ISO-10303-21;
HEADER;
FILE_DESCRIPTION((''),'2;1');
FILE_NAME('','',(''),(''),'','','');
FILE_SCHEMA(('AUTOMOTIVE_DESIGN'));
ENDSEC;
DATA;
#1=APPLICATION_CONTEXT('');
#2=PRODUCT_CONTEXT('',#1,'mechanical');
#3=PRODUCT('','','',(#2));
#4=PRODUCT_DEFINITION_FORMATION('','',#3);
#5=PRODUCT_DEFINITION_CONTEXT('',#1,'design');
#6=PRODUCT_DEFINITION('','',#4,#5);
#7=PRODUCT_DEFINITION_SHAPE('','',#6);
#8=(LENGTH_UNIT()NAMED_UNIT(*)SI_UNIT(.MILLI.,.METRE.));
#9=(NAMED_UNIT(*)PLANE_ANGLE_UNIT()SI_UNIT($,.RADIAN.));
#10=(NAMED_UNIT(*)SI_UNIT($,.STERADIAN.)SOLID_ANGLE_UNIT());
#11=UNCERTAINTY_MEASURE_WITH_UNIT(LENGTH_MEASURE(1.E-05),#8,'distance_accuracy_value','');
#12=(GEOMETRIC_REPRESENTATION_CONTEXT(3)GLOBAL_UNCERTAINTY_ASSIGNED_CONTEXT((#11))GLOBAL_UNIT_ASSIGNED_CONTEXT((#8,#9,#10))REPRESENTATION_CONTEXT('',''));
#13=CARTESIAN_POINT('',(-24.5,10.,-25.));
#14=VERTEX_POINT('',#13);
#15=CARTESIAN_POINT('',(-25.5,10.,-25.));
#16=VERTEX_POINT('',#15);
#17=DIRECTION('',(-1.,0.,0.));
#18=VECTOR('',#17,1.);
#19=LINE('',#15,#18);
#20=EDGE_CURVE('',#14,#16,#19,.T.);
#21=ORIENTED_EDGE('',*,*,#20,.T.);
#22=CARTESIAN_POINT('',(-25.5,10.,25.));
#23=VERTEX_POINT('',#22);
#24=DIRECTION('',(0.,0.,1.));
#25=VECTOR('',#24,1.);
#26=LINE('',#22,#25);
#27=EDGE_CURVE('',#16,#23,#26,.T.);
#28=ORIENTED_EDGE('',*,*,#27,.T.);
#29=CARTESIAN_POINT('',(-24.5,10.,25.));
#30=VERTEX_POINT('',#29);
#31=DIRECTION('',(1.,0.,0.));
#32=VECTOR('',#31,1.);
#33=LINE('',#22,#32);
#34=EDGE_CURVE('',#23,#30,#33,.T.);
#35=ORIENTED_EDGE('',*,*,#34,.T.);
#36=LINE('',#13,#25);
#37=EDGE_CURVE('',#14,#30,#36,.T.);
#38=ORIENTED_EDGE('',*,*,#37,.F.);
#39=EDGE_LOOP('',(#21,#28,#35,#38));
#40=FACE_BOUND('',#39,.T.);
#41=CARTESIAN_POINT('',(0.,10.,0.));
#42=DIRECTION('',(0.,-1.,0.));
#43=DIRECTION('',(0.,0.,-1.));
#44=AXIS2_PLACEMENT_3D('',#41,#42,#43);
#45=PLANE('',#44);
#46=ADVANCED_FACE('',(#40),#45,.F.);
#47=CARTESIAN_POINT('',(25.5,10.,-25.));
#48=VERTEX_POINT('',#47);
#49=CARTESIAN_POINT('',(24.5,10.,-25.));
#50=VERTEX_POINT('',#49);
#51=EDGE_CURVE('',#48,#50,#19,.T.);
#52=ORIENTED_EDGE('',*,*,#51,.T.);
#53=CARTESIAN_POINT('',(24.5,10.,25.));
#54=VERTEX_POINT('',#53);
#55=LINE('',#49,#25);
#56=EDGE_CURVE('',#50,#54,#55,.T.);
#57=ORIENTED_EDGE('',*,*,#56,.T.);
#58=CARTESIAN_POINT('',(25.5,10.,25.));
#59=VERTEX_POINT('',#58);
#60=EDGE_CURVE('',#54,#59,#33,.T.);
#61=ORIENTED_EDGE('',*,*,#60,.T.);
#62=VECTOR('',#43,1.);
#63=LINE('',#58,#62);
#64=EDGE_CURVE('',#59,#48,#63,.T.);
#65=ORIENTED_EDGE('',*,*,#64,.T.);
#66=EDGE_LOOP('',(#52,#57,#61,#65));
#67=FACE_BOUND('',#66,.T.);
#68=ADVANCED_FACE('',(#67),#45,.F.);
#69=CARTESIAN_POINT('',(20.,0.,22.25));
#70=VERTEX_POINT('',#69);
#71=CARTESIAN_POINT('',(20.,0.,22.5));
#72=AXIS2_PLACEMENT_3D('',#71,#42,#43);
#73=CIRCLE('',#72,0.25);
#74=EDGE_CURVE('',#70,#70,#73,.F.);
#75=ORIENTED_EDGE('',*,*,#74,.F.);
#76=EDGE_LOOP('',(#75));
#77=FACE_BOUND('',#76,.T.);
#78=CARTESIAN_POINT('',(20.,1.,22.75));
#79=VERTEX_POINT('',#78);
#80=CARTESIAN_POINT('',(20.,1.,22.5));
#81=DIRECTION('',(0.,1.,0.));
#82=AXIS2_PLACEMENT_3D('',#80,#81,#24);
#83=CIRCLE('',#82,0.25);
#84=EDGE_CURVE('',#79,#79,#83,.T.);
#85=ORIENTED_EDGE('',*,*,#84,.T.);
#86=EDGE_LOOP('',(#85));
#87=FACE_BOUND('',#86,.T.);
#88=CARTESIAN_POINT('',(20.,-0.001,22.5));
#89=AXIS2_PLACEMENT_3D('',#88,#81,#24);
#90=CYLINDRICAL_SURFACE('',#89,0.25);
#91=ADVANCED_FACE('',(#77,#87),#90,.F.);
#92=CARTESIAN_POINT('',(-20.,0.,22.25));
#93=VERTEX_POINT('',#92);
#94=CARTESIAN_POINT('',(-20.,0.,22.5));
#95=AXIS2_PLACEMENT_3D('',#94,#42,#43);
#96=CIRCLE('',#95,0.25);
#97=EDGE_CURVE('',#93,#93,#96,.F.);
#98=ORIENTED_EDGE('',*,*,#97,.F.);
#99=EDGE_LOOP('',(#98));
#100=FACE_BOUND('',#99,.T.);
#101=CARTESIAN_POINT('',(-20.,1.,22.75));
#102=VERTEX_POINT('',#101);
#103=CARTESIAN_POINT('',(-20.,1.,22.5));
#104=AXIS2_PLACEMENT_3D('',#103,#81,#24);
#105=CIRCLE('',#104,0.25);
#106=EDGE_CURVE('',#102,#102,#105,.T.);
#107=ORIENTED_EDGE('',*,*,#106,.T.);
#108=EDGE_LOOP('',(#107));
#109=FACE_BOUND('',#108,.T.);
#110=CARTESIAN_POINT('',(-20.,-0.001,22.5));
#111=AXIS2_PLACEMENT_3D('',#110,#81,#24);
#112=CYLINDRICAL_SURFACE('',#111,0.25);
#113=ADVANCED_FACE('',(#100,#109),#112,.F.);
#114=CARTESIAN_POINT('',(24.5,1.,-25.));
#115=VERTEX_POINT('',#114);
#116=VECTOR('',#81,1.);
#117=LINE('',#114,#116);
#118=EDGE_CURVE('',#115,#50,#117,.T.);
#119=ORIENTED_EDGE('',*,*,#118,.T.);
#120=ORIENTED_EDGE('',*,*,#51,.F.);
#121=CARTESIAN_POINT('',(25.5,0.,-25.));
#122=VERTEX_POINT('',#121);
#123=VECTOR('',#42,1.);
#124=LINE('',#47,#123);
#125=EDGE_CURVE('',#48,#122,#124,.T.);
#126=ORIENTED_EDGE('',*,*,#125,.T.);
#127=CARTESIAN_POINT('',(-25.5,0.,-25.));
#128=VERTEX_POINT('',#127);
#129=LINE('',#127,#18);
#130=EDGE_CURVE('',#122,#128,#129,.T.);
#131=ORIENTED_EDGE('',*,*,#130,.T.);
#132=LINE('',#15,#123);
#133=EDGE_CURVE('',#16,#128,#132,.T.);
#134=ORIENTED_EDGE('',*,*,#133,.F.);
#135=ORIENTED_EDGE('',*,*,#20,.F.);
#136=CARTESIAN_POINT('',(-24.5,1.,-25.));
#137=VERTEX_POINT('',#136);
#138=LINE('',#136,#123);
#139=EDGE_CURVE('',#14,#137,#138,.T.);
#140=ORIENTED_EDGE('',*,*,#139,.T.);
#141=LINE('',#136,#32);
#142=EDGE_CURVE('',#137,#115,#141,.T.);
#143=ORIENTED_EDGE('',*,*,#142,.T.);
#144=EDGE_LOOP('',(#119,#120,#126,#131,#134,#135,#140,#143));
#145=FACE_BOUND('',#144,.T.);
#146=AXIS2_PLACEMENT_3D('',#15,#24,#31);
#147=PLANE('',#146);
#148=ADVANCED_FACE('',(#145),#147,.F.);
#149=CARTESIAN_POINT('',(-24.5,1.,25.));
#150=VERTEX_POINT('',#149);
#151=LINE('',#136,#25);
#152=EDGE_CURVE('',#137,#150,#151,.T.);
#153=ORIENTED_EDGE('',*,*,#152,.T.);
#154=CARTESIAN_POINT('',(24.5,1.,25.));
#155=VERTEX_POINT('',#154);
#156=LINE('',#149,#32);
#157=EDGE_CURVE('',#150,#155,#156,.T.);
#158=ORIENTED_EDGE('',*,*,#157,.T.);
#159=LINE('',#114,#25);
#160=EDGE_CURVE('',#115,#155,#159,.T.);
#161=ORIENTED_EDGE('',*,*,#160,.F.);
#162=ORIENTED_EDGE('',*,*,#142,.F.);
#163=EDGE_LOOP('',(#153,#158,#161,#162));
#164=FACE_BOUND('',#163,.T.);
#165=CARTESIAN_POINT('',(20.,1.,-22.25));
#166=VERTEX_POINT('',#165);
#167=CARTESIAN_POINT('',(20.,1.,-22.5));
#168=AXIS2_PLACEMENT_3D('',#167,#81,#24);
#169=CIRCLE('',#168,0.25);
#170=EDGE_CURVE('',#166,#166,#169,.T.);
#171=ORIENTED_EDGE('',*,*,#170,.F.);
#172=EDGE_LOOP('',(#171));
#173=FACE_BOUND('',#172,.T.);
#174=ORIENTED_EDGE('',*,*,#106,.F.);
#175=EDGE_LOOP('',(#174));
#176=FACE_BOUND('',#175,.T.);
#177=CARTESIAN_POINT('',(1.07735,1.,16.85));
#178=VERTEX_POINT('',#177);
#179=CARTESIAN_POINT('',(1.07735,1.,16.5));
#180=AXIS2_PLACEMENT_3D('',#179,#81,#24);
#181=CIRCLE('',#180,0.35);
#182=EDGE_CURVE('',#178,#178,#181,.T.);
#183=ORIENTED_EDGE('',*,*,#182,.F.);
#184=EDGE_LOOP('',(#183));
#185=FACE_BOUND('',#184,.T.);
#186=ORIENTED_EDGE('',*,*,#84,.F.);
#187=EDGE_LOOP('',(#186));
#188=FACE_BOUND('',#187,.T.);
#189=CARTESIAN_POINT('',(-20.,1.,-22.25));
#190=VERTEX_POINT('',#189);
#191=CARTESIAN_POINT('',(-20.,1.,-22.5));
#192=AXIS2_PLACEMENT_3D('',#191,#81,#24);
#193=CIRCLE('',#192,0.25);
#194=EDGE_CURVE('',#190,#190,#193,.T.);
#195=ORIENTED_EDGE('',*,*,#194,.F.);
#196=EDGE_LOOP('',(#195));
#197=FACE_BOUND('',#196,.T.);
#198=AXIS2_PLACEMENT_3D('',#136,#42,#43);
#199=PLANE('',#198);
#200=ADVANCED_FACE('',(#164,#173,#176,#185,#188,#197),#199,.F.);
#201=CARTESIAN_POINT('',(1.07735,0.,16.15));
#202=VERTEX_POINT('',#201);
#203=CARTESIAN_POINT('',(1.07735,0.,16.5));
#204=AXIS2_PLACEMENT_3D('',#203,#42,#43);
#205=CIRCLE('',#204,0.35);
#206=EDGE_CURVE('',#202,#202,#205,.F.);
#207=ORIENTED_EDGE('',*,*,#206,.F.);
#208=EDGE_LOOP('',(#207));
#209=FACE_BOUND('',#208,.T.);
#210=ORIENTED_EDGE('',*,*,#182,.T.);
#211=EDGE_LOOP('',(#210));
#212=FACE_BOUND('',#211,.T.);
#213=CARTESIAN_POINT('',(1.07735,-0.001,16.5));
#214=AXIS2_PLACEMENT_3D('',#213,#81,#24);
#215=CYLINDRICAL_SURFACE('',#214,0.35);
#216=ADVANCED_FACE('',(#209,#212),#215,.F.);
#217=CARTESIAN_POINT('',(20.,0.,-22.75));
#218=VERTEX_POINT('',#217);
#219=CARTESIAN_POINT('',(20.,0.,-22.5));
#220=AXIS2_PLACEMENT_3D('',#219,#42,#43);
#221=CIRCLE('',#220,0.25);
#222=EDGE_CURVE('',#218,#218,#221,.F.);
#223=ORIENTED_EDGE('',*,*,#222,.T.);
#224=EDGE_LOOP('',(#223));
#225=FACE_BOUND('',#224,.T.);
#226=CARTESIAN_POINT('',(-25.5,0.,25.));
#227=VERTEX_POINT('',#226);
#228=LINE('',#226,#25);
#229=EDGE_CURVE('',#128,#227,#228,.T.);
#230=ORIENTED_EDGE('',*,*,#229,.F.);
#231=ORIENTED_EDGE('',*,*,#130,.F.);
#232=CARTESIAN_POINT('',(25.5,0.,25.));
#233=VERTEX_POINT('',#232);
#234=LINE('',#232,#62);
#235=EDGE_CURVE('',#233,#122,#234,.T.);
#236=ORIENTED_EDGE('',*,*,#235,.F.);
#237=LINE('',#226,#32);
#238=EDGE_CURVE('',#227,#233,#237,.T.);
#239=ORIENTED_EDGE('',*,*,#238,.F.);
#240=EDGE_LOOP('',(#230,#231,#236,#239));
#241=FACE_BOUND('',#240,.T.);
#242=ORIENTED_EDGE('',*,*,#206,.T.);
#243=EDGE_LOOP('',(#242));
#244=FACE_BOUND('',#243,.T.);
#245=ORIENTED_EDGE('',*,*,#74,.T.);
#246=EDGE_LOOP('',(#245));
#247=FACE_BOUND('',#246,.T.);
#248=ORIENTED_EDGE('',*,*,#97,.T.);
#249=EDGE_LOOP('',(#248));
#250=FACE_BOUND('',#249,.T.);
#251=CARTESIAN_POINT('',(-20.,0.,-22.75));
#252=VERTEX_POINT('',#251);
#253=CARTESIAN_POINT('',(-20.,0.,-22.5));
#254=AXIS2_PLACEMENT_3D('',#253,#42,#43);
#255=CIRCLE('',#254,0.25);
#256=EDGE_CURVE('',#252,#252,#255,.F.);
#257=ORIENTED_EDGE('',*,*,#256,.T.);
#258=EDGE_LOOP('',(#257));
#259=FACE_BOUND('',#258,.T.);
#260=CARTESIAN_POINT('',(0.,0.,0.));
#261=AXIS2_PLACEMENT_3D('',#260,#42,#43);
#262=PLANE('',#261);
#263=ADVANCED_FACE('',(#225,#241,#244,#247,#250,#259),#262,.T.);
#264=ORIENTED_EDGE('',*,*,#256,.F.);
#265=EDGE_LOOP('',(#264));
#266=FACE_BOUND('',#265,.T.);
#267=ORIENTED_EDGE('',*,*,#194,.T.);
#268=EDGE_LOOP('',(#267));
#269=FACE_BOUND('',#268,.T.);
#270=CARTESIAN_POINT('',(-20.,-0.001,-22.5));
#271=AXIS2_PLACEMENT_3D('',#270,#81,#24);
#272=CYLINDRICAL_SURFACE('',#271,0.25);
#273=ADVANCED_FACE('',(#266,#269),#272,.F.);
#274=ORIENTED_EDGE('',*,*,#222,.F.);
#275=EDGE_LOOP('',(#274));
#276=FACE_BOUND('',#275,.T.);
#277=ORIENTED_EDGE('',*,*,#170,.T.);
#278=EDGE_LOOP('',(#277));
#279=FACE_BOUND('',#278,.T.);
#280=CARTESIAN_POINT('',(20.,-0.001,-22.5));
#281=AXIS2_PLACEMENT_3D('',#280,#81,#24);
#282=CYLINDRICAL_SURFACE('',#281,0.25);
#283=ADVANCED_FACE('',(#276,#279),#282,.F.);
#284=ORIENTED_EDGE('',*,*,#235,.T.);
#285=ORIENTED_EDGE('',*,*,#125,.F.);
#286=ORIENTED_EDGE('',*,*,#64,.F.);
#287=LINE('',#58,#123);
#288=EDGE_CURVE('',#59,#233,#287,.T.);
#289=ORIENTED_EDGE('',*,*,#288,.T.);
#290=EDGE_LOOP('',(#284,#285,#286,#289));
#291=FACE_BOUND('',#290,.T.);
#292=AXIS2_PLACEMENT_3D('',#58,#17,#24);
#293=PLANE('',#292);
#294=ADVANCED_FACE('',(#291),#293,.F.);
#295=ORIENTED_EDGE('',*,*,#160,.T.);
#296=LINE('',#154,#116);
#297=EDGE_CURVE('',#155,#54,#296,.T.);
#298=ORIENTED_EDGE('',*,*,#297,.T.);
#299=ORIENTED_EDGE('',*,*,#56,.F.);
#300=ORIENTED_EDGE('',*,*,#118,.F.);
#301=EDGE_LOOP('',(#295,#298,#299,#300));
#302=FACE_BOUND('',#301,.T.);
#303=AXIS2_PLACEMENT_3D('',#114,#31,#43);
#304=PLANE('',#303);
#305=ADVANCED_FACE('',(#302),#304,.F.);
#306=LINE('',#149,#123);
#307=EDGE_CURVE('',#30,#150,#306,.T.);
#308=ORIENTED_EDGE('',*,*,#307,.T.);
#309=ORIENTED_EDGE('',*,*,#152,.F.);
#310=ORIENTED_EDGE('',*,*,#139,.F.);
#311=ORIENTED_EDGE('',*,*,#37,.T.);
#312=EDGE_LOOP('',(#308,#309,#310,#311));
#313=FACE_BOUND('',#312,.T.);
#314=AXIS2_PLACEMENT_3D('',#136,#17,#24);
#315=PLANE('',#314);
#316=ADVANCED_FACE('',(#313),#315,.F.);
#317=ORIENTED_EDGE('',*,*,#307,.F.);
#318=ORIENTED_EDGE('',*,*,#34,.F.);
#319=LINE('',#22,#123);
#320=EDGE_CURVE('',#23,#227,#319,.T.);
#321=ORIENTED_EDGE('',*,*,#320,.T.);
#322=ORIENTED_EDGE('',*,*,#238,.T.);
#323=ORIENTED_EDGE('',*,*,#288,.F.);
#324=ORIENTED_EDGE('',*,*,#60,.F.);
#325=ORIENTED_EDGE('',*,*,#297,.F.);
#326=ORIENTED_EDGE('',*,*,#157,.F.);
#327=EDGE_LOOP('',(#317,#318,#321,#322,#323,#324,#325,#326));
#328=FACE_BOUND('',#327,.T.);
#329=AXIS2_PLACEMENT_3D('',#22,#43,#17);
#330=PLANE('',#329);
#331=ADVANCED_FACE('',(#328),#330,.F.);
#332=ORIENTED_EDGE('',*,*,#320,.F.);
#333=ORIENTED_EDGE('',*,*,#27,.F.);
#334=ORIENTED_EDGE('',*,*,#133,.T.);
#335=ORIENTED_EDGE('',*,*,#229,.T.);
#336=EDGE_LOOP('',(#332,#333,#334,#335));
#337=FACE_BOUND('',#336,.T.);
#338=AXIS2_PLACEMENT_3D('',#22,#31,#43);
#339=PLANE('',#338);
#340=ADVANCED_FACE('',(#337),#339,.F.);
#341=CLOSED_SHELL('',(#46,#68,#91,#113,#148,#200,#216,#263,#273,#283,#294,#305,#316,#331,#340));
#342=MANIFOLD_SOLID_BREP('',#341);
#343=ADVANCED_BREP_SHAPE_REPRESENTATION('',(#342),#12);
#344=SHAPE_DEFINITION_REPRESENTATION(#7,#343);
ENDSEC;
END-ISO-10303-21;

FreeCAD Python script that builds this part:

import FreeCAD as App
import Part
import Sketcher


def add_polygon(sketch, points):
    """Adds a closed chain of lines whose ends are joined by coincident constraints."""
    first, n = sketch.GeometryCount, len(points)
    for a, b in zip(points, points[1:] + points[:1]):
        sketch.addGeometry(Part.LineSegment(App.Vector(*a, 0), App.Vector(*b, 0)), False)
    for i in range(n):
        sketch.addConstraint(Sketcher.Constraint("Coincident", first + i, 2, first + (i + 1) % n, 1))

doc = App.newDocument("Part")
body = doc.addObject("PartDesign::Body", "Body")

sketch1 = body.newObject("Sketcher::SketchObject", "Sketch")
sketch1.AttachmentSupport = (doc.getObject("XZ_Plane"), [""])
sketch1.MapMode = "FlatFace"
add_polygon(sketch1, [(-26, -25), (-26, 25), (26, 25), (26, -25)])
sketch1.addConstraint(Sketcher.Constraint("Vertical", 0))
sketch1.addConstraint(Sketcher.Constraint("Horizontal", 1))
sketch1.addConstraint(Sketcher.Constraint("Vertical", 2))
sketch1.addConstraint(Sketcher.Constraint("Horizontal", 3))
sketch1.addConstraint(Sketcher.Constraint("Symmetric", 0, 2, 2, 2, -1, 1))
sketch1.addConstraint(Sketcher.Constraint("DistanceX", 1, 1, 1, 2, 51.0))
sketch1.addConstraint(Sketcher.Constraint("DistanceY", 0, 1, 0, 2, 50.0))
pad1 = body.newObject("PartDesign::Pad", "Pad")
pad1.Profile = sketch1
pad1.Length = 10
pad1.Reversed = True

sketch2 = body.newObject("Sketcher::SketchObject", "Sketch001")
sketch2.AttachmentSupport = (doc.getObject("XY_Plane"), [""])
sketch2.MapMode = "FlatFace"
sketch2.AttachmentOffset = App.Placement(App.Vector(0, 0, 25), App.Rotation())
add_polygon(sketch2, [(-24, 10), (-24, 1), (24, 1), (24, 10)])
sketch2.addConstraint(Sketcher.Constraint("Vertical", 0))
sketch2.addConstraint(Sketcher.Constraint("Horizontal", 1))
sketch2.addConstraint(Sketcher.Constraint("Vertical", 2))
sketch2.addConstraint(Sketcher.Constraint("Horizontal", 3))
sketch2.addConstraint(Sketcher.Constraint("DistanceX", 1, 1, 1, 2, 49.0))
sketch2.addConstraint(Sketcher.Constraint("DistanceY", 0, 2, 0, 1, 9.0))
sketch2.addConstraint(Sketcher.Constraint("DistanceY", -1, 1, 0, 2, 1.0))
sketch2.addConstraint(Sketcher.Constraint("DistanceX", 0, 2, -1, 1, 24.5))
pocket1 = body.newObject("PartDesign::Pocket", "Pocket")
pocket1.Profile = sketch2
pocket1.Length = 50

sketch3 = body.newObject("Sketcher::SketchObject", "Sketch002")
sketch3.AttachmentSupport = (doc.getObject("XZ_Plane"), [""])
sketch3.MapMode = "FlatFace"
sketch3.AttachmentOffset = App.Placement(App.Vector(0, 0, -1), App.Rotation())
sketch3.addGeometry(Part.Circle(App.Vector(-20, -22.5, 0), App.Vector(0, 0, 1), 0.25), False)
sketch3.addConstraint(Sketcher.Constraint("Diameter", 0, 0.5))
sketch3.addConstraint(Sketcher.Constraint("DistanceX", 0, 3, -1, 1, 20.0))
sketch3.addConstraint(Sketcher.Constraint("DistanceY", 0, 3, -1, 1, 22.5))
pocket2 = body.newObject("PartDesign::Pocket", "Pocket001")
pocket2.Profile = sketch3
pocket2.Type = "UpToFirst"
pocket2.Reversed = True

sketch4 = body.newObject("Sketcher::SketchObject", "Sketch003")
sketch4.AttachmentSupport = (doc.getObject("XZ_Plane"), [""])
sketch4.MapMode = "FlatFace"
sketch4.AttachmentOffset = App.Placement(App.Vector(0, 0, -1), App.Rotation())
sketch4.addGeometry(Part.Circle(App.Vector(20, -22.5, 0), App.Vector(0, 0, 1), 0.25), False)
sketch4.addConstraint(Sketcher.Constraint("Diameter", 0, 0.5))
sketch4.addConstraint(Sketcher.Constraint("DistanceX", -1, 1, 0, 3, 20.0))
sketch4.addConstraint(Sketcher.Constraint("DistanceY", 0, 3, -1, 1, 22.5))
pocket3 = body.newObject("PartDesign::Pocket", "Pocket002")
pocket3.Profile = sketch4
pocket3.Type = "UpToFirst"
pocket3.Reversed = True

sketch5 = body.newObject("Sketcher::SketchObject", "Sketch004")
sketch5.AttachmentSupport = (doc.getObject("XZ_Plane"), [""])
sketch5.MapMode = "FlatFace"
sketch5.AttachmentOffset = App.Placement(App.Vector(0, 0, -1), App.Rotation())
sketch5.addGeometry(Part.Circle(App.Vector(-20, 22.5, 0), App.Vector(0, 0, 1), 0.25), False)
sketch5.addConstraint(Sketcher.Constraint("Diameter", 0, 0.5))
sketch5.addConstraint(Sketcher.Constraint("DistanceX", 0, 3, -1, 1, 20.0))
sketch5.addConstraint(Sketcher.Constraint("DistanceY", -1, 1, 0, 3, 22.5))
pocket4 = body.newObject("PartDesign::Pocket", "Pocket003")
pocket4.Profile = sketch5
pocket4.Type = "UpToFirst"
pocket4.Reversed = True

sketch6 = body.newObject("Sketcher::SketchObject", "Sketch005")
sketch6.AttachmentSupport = (doc.getObject("XZ_Plane"), [""])
sketch6.MapMode = "FlatFace"
sketch6.AttachmentOffset = App.Placement(App.Vector(0, 0, -1), App.Rotation())
sketch6.addGeometry(Part.Circle(App.Vector(20, 22.5, 0), App.Vector(0, 0, 1), 0.25), False)
sketch6.addConstraint(Sketcher.Constraint("Diameter", 0, 0.5))
sketch6.addConstraint(Sketcher.Constraint("DistanceX", -1, 1, 0, 3, 20.0))
sketch6.addConstraint(Sketcher.Constraint("DistanceY", -1, 1, 0, 3, 22.5))
pocket5 = body.newObject("PartDesign::Pocket", "Pocket004")
pocket5.Profile = sketch6
pocket5.Type = "UpToFirst"
pocket5.Reversed = True

sketch7 = body.newObject("Sketcher::SketchObject", "Sketch006")
sketch7.AttachmentSupport = (doc.getObject("XZ_Plane"), [""])
sketch7.MapMode = "FlatFace"
sketch7.AttachmentOffset = App.Placement(App.Vector(0, 0, -1), App.Rotation())
sketch7.addGeometry(Part.Circle(App.Vector(1.08, 16.5, 0), App.Vector(0, 0, 1), 0.35), False)
sketch7.addConstraint(Sketcher.Constraint("Diameter", 0, 0.7))
sketch7.addConstraint(Sketcher.Constraint("DistanceY", -1, 1, 0, 3, 16.5))
sketch7.addConstraint(Sketcher.Constraint("DistanceX", -1, 1, 0, 3, 1.07735))
pocket6 = body.newObject("PartDesign::Pocket", "Pocket005")
pocket6.Profile = sketch7
pocket6.Type = "UpToFirst"
pocket6.Reversed = True

doc.recompute()
